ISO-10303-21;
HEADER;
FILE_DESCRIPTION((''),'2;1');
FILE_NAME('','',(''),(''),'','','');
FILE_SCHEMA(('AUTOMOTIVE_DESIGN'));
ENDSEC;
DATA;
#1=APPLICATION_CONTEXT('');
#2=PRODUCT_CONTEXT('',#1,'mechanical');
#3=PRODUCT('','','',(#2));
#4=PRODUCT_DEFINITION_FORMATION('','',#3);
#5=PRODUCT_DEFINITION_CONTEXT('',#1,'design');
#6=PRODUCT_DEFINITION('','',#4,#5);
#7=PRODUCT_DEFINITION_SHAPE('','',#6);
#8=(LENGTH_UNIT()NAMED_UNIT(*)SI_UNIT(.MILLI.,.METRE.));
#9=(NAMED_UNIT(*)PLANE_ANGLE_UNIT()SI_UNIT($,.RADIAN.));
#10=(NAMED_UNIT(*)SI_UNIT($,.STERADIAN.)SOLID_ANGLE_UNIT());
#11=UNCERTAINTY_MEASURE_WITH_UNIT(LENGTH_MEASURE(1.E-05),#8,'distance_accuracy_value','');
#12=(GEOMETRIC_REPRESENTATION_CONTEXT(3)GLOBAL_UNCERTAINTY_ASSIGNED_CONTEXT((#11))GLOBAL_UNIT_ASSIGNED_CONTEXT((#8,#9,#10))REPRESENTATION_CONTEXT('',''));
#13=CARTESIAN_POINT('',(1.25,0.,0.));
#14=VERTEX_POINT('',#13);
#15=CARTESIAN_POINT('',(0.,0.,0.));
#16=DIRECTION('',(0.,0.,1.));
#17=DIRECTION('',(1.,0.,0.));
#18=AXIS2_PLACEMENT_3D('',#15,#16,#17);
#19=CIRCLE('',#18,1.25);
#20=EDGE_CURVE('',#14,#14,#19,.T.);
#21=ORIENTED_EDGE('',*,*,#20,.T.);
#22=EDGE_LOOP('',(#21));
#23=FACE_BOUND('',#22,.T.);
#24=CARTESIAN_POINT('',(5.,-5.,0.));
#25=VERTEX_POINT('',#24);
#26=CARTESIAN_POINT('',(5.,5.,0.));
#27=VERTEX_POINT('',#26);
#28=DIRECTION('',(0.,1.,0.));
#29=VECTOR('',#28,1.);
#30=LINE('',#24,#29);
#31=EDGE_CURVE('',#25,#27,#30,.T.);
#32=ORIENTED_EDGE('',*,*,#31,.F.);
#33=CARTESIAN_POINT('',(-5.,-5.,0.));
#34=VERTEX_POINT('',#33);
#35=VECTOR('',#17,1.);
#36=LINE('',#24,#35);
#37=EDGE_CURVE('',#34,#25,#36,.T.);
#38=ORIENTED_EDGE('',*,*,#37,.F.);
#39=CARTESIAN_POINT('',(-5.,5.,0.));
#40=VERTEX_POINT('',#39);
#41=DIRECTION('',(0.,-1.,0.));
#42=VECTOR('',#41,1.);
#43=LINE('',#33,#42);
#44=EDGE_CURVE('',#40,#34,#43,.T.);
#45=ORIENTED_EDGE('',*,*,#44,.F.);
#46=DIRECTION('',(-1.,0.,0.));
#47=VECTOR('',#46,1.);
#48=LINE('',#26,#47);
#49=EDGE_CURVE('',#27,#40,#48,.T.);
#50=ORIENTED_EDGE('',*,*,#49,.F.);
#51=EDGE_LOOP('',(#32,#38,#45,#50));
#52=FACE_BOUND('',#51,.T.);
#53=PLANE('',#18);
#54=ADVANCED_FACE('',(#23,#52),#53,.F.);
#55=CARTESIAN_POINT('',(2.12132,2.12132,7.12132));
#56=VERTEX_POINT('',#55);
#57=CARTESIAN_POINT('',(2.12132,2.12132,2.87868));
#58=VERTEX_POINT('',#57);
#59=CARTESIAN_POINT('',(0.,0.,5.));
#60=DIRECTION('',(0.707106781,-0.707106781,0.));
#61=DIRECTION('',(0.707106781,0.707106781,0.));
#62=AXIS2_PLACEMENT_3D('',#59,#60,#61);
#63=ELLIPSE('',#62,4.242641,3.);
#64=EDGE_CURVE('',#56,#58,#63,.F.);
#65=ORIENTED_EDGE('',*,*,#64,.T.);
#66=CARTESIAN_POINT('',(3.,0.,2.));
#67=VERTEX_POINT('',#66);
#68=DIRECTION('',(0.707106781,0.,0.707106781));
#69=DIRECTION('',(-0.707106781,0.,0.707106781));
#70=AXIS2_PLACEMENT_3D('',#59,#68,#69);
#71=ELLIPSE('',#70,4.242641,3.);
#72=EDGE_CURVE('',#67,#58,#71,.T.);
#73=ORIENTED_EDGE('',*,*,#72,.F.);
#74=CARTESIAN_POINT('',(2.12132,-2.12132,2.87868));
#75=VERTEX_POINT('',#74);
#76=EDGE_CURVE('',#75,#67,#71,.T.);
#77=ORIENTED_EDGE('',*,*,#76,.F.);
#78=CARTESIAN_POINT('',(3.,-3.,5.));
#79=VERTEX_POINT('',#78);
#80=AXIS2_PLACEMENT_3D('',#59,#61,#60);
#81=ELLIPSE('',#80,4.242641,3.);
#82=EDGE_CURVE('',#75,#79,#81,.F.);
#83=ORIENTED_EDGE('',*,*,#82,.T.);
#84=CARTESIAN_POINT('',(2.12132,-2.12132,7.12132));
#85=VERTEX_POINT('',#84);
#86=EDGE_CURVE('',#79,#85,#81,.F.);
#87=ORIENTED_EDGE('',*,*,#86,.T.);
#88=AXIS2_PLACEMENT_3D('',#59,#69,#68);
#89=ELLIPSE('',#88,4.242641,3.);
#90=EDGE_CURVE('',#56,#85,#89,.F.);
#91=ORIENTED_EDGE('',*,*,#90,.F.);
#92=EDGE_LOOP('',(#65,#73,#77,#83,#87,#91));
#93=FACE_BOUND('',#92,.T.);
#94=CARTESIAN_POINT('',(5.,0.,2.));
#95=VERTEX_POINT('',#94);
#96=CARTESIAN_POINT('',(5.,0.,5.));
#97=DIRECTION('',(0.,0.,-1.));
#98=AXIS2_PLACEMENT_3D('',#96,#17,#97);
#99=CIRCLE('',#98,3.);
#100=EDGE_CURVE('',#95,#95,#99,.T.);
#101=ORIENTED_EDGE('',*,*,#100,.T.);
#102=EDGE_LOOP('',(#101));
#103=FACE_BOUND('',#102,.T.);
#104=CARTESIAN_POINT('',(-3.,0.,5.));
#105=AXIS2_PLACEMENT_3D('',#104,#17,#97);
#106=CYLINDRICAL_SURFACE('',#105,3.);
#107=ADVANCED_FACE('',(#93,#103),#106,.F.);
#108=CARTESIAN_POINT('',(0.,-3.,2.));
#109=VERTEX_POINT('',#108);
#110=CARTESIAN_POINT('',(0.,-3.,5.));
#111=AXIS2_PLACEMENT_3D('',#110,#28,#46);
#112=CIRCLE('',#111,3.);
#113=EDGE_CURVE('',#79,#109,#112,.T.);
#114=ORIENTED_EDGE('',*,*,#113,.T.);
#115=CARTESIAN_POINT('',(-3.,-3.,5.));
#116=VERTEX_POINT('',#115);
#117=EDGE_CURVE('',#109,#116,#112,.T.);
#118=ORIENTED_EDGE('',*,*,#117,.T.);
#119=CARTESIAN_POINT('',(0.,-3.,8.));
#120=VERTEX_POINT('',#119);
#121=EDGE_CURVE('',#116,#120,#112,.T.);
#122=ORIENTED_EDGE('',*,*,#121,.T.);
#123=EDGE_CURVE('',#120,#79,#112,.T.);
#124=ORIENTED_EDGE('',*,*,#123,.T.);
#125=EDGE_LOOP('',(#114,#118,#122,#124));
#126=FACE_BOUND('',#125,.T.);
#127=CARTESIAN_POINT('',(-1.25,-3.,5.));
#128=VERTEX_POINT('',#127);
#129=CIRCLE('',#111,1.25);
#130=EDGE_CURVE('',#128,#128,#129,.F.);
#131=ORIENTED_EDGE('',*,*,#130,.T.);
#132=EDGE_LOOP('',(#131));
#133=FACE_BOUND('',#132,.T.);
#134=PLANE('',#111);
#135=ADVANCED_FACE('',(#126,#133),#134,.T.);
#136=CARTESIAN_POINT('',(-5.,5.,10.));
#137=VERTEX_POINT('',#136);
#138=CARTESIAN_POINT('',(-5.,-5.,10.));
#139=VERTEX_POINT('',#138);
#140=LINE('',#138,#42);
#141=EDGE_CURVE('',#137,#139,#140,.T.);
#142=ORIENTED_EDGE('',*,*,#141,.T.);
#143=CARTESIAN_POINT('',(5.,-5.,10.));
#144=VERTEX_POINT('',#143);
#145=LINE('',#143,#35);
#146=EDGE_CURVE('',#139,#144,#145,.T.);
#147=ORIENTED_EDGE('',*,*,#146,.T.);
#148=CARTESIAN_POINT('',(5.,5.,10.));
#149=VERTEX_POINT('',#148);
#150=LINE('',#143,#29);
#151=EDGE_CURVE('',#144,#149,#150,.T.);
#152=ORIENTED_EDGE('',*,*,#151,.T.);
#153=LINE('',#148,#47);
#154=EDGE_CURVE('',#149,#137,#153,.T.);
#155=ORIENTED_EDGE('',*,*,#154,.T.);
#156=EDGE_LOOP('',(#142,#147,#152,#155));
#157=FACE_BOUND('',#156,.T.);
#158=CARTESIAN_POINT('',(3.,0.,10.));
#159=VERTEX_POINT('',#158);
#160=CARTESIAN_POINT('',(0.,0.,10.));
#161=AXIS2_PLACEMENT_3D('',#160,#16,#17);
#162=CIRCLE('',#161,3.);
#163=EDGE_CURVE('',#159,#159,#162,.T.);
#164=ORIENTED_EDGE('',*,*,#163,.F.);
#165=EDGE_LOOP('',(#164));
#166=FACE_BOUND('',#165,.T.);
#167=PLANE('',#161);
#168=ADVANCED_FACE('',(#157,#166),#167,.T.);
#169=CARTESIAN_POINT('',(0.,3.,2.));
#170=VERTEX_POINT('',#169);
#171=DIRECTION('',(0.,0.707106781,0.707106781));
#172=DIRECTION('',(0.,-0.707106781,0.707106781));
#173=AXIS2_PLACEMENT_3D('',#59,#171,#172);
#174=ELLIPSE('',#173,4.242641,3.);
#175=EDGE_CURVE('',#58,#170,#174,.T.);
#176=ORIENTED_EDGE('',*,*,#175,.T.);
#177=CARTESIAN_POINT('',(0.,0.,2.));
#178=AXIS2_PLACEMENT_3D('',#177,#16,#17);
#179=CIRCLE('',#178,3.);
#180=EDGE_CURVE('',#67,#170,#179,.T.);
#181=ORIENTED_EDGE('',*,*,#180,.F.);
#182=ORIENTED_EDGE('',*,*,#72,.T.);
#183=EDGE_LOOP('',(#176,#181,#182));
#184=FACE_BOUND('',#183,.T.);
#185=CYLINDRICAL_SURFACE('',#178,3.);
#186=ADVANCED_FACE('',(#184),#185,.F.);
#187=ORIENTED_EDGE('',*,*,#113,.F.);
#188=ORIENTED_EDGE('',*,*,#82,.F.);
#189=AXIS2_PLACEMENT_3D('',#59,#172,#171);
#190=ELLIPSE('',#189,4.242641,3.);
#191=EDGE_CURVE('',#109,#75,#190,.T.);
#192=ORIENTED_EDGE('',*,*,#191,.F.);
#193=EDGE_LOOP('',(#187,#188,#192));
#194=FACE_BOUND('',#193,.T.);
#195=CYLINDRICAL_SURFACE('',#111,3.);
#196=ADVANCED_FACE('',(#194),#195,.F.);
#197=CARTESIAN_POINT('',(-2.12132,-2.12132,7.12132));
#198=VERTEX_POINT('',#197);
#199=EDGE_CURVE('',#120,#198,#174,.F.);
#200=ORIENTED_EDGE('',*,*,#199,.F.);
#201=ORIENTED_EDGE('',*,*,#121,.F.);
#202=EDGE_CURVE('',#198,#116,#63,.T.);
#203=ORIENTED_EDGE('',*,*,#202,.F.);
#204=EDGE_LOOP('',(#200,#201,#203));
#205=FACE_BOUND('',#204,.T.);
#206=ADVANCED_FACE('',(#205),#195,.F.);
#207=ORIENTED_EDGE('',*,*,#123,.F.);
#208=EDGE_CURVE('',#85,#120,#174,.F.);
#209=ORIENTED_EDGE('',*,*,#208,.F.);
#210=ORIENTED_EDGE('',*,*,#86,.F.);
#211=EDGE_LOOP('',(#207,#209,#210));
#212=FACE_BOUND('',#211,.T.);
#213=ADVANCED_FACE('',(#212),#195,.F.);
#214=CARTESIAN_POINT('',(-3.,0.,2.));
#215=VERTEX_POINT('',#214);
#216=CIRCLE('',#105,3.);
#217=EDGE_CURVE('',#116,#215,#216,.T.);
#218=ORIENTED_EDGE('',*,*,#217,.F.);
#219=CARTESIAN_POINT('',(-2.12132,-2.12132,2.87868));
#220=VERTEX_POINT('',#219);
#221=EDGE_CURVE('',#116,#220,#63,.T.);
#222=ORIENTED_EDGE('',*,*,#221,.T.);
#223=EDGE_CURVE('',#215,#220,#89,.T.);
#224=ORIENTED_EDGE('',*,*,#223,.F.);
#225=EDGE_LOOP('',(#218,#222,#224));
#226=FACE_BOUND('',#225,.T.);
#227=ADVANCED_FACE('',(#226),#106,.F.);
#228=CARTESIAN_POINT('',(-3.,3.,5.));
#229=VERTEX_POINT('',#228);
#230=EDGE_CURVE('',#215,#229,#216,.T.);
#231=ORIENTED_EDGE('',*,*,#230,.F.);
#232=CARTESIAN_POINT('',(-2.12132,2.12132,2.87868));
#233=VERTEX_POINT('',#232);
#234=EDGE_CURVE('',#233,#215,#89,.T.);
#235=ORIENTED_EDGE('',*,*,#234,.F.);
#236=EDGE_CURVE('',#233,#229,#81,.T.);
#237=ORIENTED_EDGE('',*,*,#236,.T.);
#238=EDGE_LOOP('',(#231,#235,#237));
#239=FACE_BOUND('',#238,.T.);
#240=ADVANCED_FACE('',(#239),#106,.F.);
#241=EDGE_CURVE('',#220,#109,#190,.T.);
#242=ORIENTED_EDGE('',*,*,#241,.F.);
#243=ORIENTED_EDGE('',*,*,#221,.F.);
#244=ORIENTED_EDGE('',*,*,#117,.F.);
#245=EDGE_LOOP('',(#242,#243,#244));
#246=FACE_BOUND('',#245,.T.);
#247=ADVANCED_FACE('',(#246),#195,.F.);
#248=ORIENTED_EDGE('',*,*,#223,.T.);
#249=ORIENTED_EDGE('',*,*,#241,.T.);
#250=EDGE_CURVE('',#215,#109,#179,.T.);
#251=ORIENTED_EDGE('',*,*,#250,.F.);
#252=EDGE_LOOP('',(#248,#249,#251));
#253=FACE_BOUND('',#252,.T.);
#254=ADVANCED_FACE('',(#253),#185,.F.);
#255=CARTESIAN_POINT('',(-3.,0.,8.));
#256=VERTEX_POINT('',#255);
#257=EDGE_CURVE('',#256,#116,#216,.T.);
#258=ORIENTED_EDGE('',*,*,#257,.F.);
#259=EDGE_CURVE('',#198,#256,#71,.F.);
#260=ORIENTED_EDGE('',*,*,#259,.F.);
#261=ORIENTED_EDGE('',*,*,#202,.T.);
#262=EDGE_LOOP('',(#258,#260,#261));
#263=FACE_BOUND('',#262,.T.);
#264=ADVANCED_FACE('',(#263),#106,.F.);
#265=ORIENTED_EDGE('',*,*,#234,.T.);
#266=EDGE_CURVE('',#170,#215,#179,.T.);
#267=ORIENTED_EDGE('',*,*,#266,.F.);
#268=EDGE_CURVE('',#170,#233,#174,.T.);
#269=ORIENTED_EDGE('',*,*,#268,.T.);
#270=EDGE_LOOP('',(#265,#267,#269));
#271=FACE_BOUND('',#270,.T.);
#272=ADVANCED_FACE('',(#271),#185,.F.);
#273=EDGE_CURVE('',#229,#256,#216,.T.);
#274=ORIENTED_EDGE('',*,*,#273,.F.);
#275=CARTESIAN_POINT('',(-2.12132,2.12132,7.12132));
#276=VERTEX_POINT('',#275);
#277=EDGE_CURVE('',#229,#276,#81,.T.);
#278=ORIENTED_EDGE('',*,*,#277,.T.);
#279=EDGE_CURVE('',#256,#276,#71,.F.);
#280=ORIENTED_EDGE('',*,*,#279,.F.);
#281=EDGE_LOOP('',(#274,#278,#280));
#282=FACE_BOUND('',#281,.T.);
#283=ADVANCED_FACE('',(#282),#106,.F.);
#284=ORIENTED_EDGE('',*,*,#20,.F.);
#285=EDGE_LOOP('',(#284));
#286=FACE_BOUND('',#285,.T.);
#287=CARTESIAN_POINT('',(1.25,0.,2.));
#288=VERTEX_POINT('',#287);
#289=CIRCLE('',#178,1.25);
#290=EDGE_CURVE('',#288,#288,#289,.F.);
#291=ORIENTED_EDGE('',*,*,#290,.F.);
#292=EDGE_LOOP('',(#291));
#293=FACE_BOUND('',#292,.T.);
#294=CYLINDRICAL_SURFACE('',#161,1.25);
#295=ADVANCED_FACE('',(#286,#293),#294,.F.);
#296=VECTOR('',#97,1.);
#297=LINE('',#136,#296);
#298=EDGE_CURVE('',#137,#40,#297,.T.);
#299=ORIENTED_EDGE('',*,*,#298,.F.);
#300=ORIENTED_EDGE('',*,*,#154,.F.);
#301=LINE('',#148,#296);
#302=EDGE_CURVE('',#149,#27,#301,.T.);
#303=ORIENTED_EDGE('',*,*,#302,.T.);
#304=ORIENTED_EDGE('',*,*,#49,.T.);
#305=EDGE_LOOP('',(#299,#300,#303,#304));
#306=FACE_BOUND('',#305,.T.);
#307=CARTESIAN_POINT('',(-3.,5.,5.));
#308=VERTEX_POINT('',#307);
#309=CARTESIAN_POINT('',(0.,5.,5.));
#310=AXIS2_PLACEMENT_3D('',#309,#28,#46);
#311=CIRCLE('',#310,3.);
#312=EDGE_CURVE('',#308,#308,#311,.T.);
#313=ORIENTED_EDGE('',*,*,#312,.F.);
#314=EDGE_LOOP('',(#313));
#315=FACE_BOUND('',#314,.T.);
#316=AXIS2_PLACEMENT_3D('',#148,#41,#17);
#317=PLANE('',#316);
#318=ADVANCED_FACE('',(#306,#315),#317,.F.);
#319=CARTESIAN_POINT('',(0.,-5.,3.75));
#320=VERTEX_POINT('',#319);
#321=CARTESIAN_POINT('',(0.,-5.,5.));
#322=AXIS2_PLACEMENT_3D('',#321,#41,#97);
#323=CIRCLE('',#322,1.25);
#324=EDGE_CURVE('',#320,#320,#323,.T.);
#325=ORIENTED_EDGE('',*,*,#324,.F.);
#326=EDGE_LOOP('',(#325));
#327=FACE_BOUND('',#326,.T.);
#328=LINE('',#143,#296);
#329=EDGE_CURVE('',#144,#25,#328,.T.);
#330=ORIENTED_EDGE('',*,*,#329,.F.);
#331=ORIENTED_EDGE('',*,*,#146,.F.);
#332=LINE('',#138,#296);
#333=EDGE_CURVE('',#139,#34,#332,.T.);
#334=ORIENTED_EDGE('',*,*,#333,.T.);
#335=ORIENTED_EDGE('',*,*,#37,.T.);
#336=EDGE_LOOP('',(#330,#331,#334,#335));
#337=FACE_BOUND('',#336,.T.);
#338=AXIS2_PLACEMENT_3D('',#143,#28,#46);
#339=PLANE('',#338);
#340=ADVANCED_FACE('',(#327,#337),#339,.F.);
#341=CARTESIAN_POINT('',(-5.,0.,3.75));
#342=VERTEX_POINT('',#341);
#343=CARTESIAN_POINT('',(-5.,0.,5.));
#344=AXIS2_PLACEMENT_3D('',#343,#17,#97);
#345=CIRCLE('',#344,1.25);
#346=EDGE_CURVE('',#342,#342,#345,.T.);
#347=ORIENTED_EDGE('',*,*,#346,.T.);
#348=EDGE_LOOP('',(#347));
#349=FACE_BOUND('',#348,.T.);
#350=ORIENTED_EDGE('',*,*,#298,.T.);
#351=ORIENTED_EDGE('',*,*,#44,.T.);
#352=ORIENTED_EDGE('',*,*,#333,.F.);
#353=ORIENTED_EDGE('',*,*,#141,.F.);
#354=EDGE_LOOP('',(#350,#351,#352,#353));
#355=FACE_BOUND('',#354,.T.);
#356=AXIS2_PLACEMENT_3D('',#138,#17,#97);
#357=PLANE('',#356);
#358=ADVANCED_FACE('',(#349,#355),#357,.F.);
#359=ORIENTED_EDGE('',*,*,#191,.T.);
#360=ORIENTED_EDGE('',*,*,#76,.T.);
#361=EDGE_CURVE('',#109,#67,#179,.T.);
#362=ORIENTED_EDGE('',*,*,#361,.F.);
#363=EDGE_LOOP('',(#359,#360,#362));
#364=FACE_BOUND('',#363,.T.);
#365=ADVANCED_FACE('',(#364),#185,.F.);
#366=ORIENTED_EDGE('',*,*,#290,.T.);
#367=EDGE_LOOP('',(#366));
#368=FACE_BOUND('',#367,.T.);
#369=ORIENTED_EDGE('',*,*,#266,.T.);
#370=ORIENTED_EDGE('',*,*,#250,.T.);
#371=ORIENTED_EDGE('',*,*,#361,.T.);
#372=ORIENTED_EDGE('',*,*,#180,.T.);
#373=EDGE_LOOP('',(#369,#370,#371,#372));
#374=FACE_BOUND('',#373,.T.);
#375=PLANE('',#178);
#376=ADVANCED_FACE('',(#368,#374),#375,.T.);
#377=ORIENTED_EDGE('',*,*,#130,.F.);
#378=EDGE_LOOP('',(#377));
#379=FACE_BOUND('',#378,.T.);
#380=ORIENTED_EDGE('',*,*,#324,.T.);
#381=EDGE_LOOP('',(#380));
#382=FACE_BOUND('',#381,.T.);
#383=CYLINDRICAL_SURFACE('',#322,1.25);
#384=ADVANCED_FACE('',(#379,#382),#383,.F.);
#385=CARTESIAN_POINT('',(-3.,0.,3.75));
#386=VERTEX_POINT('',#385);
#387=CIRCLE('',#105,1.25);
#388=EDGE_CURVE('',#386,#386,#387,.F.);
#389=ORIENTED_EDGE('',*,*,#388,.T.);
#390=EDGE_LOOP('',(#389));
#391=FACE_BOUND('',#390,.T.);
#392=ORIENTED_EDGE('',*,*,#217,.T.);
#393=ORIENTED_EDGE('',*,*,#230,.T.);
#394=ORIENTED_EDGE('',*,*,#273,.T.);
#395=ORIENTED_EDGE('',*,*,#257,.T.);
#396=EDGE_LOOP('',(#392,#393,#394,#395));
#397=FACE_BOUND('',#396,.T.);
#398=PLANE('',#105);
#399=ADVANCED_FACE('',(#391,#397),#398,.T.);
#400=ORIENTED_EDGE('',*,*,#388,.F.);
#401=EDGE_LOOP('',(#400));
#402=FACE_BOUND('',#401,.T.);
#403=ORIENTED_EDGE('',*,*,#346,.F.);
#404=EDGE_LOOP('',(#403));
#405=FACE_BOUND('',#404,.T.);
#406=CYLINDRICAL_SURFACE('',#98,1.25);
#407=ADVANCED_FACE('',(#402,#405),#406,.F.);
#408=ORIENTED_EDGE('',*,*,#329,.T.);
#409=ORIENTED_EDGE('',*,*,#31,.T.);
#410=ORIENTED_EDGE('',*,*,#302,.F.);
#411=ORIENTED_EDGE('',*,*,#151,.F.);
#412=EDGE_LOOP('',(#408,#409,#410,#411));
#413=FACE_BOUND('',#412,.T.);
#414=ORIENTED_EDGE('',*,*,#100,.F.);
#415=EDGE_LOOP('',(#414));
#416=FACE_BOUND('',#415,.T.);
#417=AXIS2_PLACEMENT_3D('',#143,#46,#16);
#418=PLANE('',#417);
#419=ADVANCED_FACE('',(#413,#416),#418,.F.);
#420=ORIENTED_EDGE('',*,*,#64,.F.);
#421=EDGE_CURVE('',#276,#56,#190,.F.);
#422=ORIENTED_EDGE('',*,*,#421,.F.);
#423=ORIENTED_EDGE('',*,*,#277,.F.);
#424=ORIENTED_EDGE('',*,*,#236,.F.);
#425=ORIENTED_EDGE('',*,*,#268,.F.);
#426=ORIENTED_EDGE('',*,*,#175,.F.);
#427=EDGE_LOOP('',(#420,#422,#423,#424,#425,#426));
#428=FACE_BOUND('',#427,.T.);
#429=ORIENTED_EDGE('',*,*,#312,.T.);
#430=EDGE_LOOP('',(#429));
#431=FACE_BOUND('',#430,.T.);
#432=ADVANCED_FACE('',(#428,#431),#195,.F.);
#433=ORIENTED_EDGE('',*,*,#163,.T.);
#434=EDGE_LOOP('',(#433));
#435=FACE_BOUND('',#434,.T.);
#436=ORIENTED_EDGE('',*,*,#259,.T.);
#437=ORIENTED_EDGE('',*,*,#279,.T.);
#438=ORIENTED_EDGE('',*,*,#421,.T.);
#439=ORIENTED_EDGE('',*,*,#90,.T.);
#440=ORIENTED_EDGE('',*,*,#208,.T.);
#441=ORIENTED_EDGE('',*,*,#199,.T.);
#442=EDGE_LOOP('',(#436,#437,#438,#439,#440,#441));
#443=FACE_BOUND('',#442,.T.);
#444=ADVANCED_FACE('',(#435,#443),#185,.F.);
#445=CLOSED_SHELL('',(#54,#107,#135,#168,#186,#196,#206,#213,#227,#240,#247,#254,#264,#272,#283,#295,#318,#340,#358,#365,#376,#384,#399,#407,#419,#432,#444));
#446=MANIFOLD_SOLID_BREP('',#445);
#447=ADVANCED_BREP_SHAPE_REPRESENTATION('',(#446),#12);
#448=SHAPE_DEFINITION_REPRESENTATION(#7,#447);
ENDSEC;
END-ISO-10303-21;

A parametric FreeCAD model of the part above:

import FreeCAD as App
import Part
import Sketcher

V = App.Vector

doc = App.newDocument("Part")
params = doc.addObject("Spreadsheet::Sheet", "Params")
for row, (alias, value) in enumerate([
    ("sketch1_width", "10 mm"),
    ("pad1_length", "10 mm"),
    ("sketch2_diameter", "2.5 mm"),
    ("hole_diameter", "2.5 mm"),
    ("sketch3_diameter", "2.5 mm"),
    ("hole2_diameter", "2.5 mm"),
    ("sketch4_diameter", "2.5 mm"),
    ("hole3_diameter", "2.5 mm"),
    ("sketch5_diameter", "6 mm"),
    ("pocket1_length", "8 mm"),
    ("sketch6_diameter", "6 mm"),
    ("pocket2_length", "8 mm"),
    ("sketch7_diameter", "6 mm"),
    ("pocket3_length", "8 mm"),
], start=1):
    params.set(f"A{row}", alias)
    params.set(f"B{row}", "=" + value)
    params.setAlias(f"B{row}", alias)

body = doc.addObject("PartDesign::Body", "Body")

sketch1 = body.newObject("Sketcher::SketchObject", "Sketch")
sketch1.AttachmentSupport = (doc.getObject("XY_Plane"), [""])
sketch1.MapMode = "FlatFace"
sketch1.addGeometry([
    Part.LineSegment(V(-5, 5, 0), V(-5, -5, 0)),
    Part.LineSegment(V(-5, -5, 0), V(5, -5, 0)),
    Part.LineSegment(V(5, -5, 0), V(5, 5, 0)),
    Part.LineSegment(V(5, 5, 0), V(-5, 5, 0)),
], False)
sketch1.addConstraint([
    Sketcher.Constraint("Coincident", 0, 2, 1, 1),
    Sketcher.Constraint("Coincident", 1, 2, 2, 1),
    Sketcher.Constraint("Coincident", 2, 2, 3, 1),
    Sketcher.Constraint("Coincident", 3, 2, 0, 1),
    Sketcher.Constraint("Vertical", 0),
    Sketcher.Constraint("Horizontal", 1),
    Sketcher.Constraint("Vertical", 2),
    Sketcher.Constraint("Horizontal", 3),
    Sketcher.Constraint("Symmetric", 0, 2, 2, 2, -1, 1),
    Sketcher.Constraint("Equal", 3, 0),
    Sketcher.Constraint("DistanceX", 1, 1, 1, 2, 10.0),
])
sketch1.setExpression("Constraints[10]", "Params.sketch1_width")
pad1 = body.newObject("PartDesign::Pad", "Pad")
pad1.Profile = sketch1
pad1.setExpression("Length", "Params.pad1_length")

sketch2 = body.newObject("Sketcher::SketchObject", "Sketch001")
sketch2.AttachmentSupport = (doc.getObject("XY_Plane"), [""])
sketch2.MapMode = "FlatFace"
sketch2.AttachmentOffset = App.Placement(V(0, 0, 10), App.Rotation())
sketch2.addGeometry(Part.Circle(V(0, 0, 0), V(0, 0, 1), 1.25), False)
sketch2.addConstraint([
    Sketcher.Constraint("Coincident", 0, 3, -1, 1),
    Sketcher.Constraint("Diameter", 0, 2.5),
])
sketch2.setExpression("Constraints[1]", "Params.sketch2_diameter")
doc.recompute()
hole = body.newObject("PartDesign::Hole", "Hole")
hole.Profile = sketch2
hole.ThreadType = "None"
hole.setExpression("Diameter", "Params.hole_diameter")
hole.DepthType = "ThroughAll"

sketch3 = body.newObject("Sketcher::SketchObject", "Sketch002")
sketch3.AttachmentSupport = (doc.getObject("YZ_Plane"), [""])
sketch3.MapMode = "FlatFace"
sketch3.AttachmentOffset = App.Placement(V(0, 0, 5), App.Rotation())
sketch3.addGeometry(Part.Circle(V(0, 5, 0), V(0, 0, 1), 1.25), False)
sketch3.addConstraint([
    Sketcher.Constraint("PointOnObject", 0, 3, -2),
    Sketcher.Constraint("Diameter", 0, 2.5),
    Sketcher.Constraint("DistanceY", -1, 1, 0, 3, 5.0),
])
sketch3.setExpression("Constraints[1]", "Params.sketch3_diameter")
doc.recompute()
hole2 = body.newObject("PartDesign::Hole", "Hole001")
hole2.Profile = sketch3
hole2.ThreadType = "None"
hole2.setExpression("Diameter", "Params.hole2_diameter")
hole2.DepthType = "ThroughAll"

sketch4 = body.newObject("Sketcher::SketchObject", "Sketch003")
sketch4.AttachmentSupport = (doc.getObject("XZ_Plane"), [""])
sketch4.MapMode = "FlatFace"
sketch4.AttachmentOffset = App.Placement(V(0, 0, 5), App.Rotation())
sketch4.addGeometry(Part.Circle(V(0, 5, 0), V(0, 0, 1), 1.25), False)
sketch4.addConstraint([
    Sketcher.Constraint("PointOnObject", 0, 3, -2),
    Sketcher.Constraint("Diameter", 0, 2.5),
    Sketcher.Constraint("DistanceY", -1, 1, 0, 3, 5.0),
])
sketch4.setExpression("Constraints[1]", "Params.sketch4_diameter")
doc.recompute()
hole3 = body.newObject("PartDesign::Hole", "Hole002")
hole3.Profile = sketch4
hole3.ThreadType = "None"
hole3.setExpression("Diameter", "Params.hole3_diameter")
hole3.DepthType = "ThroughAll"

sketch5 = body.newObject("Sketcher::SketchObject", "Sketch004")
sketch5.AttachmentSupport = (doc.getObject("XY_Plane"), [""])
sketch5.MapMode = "FlatFace"
sketch5.AttachmentOffset = App.Placement(V(0, 0, 10), App.Rotation())
sketch5.addGeometry(Part.Circle(V(0, 0, 0), V(0, 0, 1), 3), False)
sketch5.addConstraint([
    Sketcher.Constraint("Coincident", 0, 3, -1, 1),
    Sketcher.Constraint("Diameter", 0, 6.0),
])
sketch5.setExpression("Constraints[1]", "Params.sketch5_diameter")
pocket1 = body.newObject("PartDesign::Pocket", "Pocket")
pocket1.Profile = sketch5
pocket1.setExpression("Length", "Params.pocket1_length")

sketch6 = body.newObject("Sketcher::SketchObject", "Sketch005")
sketch6.AttachmentSupport = (doc.getObject("YZ_Plane"), [""])
sketch6.MapMode = "FlatFace"
sketch6.AttachmentOffset = App.Placement(V(0, 0, 5), App.Rotation())
sketch6.addGeometry(Part.Circle(V(0, 5, 0), V(0, 0, 1), 3), False)
sketch6.addConstraint([
    Sketcher.Constraint("PointOnObject", 0, 3, -2),
    Sketcher.Constraint("Diameter", 0, 6.0),
    Sketcher.Constraint("DistanceY", -1, 1, 0, 3, 5.0),
])
sketch6.setExpression("Constraints[1]", "Params.sketch6_diameter")
pocket2 = body.newObject("PartDesign::Pocket", "Pocket001")
pocket2.Profile = sketch6
pocket2.setExpression("Length", "Params.pocket2_length")

sketch7 = body.newObject("Sketcher::SketchObject", "Sketch006")
sketch7.AttachmentSupport = (doc.getObject("XZ_Plane"), [""])
sketch7.MapMode = "FlatFace"
sketch7.AttachmentOffset = App.Placement(V(0, 0, -5), App.Rotation())
sketch7.addGeometry(Part.Circle(V(0, 5, 0), V(0, 0, 1), 3), False)
sketch7.addConstraint([
    Sketcher.Constraint("PointOnObject", 0, 3, -2),
    Sketcher.Constraint("Diameter", 0, 6.0),
    Sketcher.Constraint("DistanceY", -1, 1, 0, 3, 5.0),
])
sketch7.setExpression("Constraints[1]", "Params.sketch7_diameter")
pocket3 = body.newObject("PartDesign::Pocket", "Pocket002")
pocket3.Profile = sketch7
pocket3.setExpression("Length", "Params.pocket3_length")
pocket3.Reversed = True

doc.recompute()
